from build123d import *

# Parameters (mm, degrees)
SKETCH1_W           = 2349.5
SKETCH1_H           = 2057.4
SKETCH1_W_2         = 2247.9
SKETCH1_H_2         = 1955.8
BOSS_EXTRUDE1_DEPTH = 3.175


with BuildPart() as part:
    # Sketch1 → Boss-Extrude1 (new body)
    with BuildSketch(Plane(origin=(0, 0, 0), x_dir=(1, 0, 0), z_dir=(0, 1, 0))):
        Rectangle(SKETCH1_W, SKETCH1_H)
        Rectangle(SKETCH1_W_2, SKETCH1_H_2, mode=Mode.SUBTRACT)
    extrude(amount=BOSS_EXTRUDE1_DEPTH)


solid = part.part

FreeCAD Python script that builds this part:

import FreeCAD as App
import Part
import Sketcher
Q = App.Units.Quantity

doc = App.newDocument("Part")
params = doc.addObject("Spreadsheet::Sheet", "Params")
for row, (alias, value) in enumerate([
    ("sketch1_height", "81 in"),
    ("sketch1_height2", "77 in"),
    ("sketch1_width", "92.5 in"),
    ("sketch1_width2", "88.5 in"),
    ("pad1_length", "0.125 in"),
], start=1):
    params.set(f"A{row}", alias)
    params.set(f"B{row}", "=" + value)
    params.setAlias(f"B{row}", alias)

body = doc.addObject("PartDesign::Body", "Body")

# Sketch on XZ plane
sketch1 = doc.addObject("Sketcher::SketchObject", "Sketch")
body.addObject(sketch1)
sketch1.AttachmentSupport = (doc.XZ_Plane, [""])
sketch1.MapMode = "FlatFace"
sketch1.addGeometry([
    Part.LineSegment(App.Vector(-1175, -1029, 0), App.Vector(-1175, 1029, 0)),  # 0
    Part.LineSegment(App.Vector(-1175, 1029, 0), App.Vector(1175, 1029, 0)),  # 1
    Part.LineSegment(App.Vector(1175, 1029, 0), App.Vector(1175, -1029, 0)),  # 2
    Part.LineSegment(App.Vector(1175, -1029, 0), App.Vector(-1175, -1029, 0)),  # 3
    Part.LineSegment(App.Vector(1124, 978, 0), App.Vector(-1124, 978, 0)),  # 4
    Part.LineSegment(App.Vector(-1124, 978, 0), App.Vector(-1124, -978, 0)),  # 5
    Part.LineSegment(App.Vector(-1124, -978, 0), App.Vector(1124, -978, 0)),  # 6
    Part.LineSegment(App.Vector(1124, -978, 0), App.Vector(1124, 978, 0)),  # 7
], False)
sketch1.addConstraint([
    Sketcher.Constraint("Coincident", 0, 2, 1, 1),
    Sketcher.Constraint("Coincident", 1, 2, 2, 1),
    Sketcher.Constraint("Coincident", 2, 2, 3, 1),
    Sketcher.Constraint("Coincident", 3, 2, 0, 1),
    Sketcher.Constraint("Coincident", 4, 2, 5, 1),
    Sketcher.Constraint("Coincident", 5, 2, 6, 1),
    Sketcher.Constraint("Coincident", 6, 2, 7, 1),
    Sketcher.Constraint("Coincident", 7, 2, 4, 1),
    Sketcher.Constraint("Vertical", 0),
    Sketcher.Constraint("Horizontal", 1),
    Sketcher.Constraint("Vertical", 2),
    Sketcher.Constraint("Horizontal", 3),
    Sketcher.Constraint("Horizontal", 4),
    Sketcher.Constraint("Vertical", 5),
    Sketcher.Constraint("Horizontal", 6),
    Sketcher.Constraint("Vertical", 7),
    Sketcher.Constraint("Symmetric", 0, 2, 2, 2, -1, 1),
    Sketcher.Constraint("Symmetric", 4, 2, 6, 2, -1, 1),
    Sketcher.Constraint("DistanceY", 0, 1, 0, 2, Q("81 in")),
    Sketcher.Constraint("DistanceY", 5, 2, 5, 1, Q("77 in")),
    Sketcher.Constraint("DistanceX", 1, 1, 1, 2, Q("92.5 in")),
    Sketcher.Constraint("DistanceX", 4, 2, 4, 1, Q("88.5 in")),
])
sketch1.setExpression("Constraints[18]", "Params.sketch1_height")
sketch1.setExpression("Constraints[19]", "Params.sketch1_height2")
sketch1.setExpression("Constraints[20]", "Params.sketch1_width")
sketch1.setExpression("Constraints[21]", "Params.sketch1_width2")
pad1 = doc.addObject("PartDesign::Pad", "Pad")
body.addObject(pad1)
pad1.Profile = sketch1
pad1.setExpression("Length", "Params.pad1_length")
pad1.Reversed = True

doc.recompute()
